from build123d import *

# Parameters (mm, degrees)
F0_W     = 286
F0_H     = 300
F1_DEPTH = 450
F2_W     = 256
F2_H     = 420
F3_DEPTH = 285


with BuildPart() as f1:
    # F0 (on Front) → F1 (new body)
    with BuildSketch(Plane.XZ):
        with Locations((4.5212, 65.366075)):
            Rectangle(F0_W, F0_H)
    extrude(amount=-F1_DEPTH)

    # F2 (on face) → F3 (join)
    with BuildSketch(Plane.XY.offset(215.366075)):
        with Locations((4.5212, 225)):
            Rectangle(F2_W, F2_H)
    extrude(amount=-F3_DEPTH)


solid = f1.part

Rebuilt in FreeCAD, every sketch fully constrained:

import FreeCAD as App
import Part
import Sketcher
from FreeCAD import Vector


def add_polygon(sketch, points):
    """Adds a closed chain of lines whose ends are joined by coincident constraints."""
    first, n = sketch.GeometryCount, len(points)
    for a, b in zip(points, points[1:] + points[:1]):
        sketch.addGeometry(Part.LineSegment(App.Vector(*a, 0), App.Vector(*b, 0)), False)
    for i in range(n):
        sketch.addConstraint(Sketcher.Constraint("Coincident", first + i, 2, first + (i + 1) % n, 1))

doc = App.newDocument("Part")
params = doc.addObject("Spreadsheet::Sheet", "Params")
for row, (alias, value) in enumerate([
    ("sketch1_width", "286 mm"),
    ("sketch1_height", "300 mm"),
    ("pad1_length", "450 mm"),
    ("sketch2_width", "256 mm"),
    ("sketch2_height", "420 mm"),
    ("pad2_length", "285 mm"),
], start=1):
    params.set(f"A{row}", alias)
    params.set(f"B{row}", "=" + value)
    params.setAlias(f"B{row}", alias)

body = doc.addObject("PartDesign::Body", "Body")

sketch1 = body.newObject("Sketcher::SketchObject", "Sketch")
sketch1.AttachmentSupport = (doc.getObject("XZ_Plane"), [""])
sketch1.MapMode = "FlatFace"
add_polygon(sketch1, [(-138.4788, 215.366075), (-138.4788, -84.633925), (147.5212, -84.633925), (147.5212, 215.366075)])
sketch1.addConstraint(Sketcher.Constraint("Vertical", 0))
sketch1.addConstraint(Sketcher.Constraint("Horizontal", 1))
sketch1.addConstraint(Sketcher.Constraint("Vertical", 2))
sketch1.addConstraint(Sketcher.Constraint("Horizontal", 3))
sketch1.addConstraint(Sketcher.Constraint("DistanceX", 1, 1, 1, 2, 286.0))
sketch1.addConstraint(Sketcher.Constraint("DistanceY", 0, 2, 0, 1, 300.0))
sketch1.addConstraint(Sketcher.Constraint("DistanceX", 0, 2, -1, 1, 138.4788))
sketch1.addConstraint(Sketcher.Constraint("DistanceY", 0, 2, -1, 1, 84.633925))
sketch1.setExpression("Constraints[8]", "Params.sketch1_width")
sketch1.setExpression("Constraints[9]", "Params.sketch1_height")
pad1 = body.newObject("PartDesign::Pad", "Pad")
pad1.Profile = sketch1
pad1.setExpression("Length", "Params.pad1_length")
pad1.Reversed = True

sketch2 = body.newObject("Sketcher::SketchObject", "Sketch001")
sketch2.AttachmentSupport = (doc.getObject("XY_Plane"), [""])
sketch2.MapMode = "FlatFace"
sketch2.AttachmentOffset = App.Placement(Vector(0, 0, 215.366075), App.Rotation())
add_polygon(sketch2, [(-123.4788, 435), (-123.4788, 15), (132.5212, 15), (132.5212, 435)])
sketch2.addConstraint(Sketcher.Constraint("Vertical", 0))
sketch2.addConstraint(Sketcher.Constraint("Horizontal", 1))
sketch2.addConstraint(Sketcher.Constraint("Vertical", 2))
sketch2.addConstraint(Sketcher.Constraint("Horizontal", 3))
sketch2.addConstraint(Sketcher.Constraint("DistanceX", 1, 1, 1, 2, 256.0))
sketch2.addConstraint(Sketcher.Constraint("DistanceY", 0, 2, 0, 1, 420.0))
sketch2.addConstraint(Sketcher.Constraint("DistanceY", -1, 1, 0, 2, 15.0))
sketch2.addConstraint(Sketcher.Constraint("DistanceX", 0, 2, -1, 1, 123.4788))
sketch2.setExpression("Constraints[8]", "Params.sketch2_width")
sketch2.setExpression("Constraints[9]", "Params.sketch2_height")
pad2 = body.newObject("PartDesign::Pad", "Pad001")
pad2.Profile = sketch2
pad2.setExpression("Length", "Params.pad2_length")
pad2.Reversed = True

doc.recompute()
